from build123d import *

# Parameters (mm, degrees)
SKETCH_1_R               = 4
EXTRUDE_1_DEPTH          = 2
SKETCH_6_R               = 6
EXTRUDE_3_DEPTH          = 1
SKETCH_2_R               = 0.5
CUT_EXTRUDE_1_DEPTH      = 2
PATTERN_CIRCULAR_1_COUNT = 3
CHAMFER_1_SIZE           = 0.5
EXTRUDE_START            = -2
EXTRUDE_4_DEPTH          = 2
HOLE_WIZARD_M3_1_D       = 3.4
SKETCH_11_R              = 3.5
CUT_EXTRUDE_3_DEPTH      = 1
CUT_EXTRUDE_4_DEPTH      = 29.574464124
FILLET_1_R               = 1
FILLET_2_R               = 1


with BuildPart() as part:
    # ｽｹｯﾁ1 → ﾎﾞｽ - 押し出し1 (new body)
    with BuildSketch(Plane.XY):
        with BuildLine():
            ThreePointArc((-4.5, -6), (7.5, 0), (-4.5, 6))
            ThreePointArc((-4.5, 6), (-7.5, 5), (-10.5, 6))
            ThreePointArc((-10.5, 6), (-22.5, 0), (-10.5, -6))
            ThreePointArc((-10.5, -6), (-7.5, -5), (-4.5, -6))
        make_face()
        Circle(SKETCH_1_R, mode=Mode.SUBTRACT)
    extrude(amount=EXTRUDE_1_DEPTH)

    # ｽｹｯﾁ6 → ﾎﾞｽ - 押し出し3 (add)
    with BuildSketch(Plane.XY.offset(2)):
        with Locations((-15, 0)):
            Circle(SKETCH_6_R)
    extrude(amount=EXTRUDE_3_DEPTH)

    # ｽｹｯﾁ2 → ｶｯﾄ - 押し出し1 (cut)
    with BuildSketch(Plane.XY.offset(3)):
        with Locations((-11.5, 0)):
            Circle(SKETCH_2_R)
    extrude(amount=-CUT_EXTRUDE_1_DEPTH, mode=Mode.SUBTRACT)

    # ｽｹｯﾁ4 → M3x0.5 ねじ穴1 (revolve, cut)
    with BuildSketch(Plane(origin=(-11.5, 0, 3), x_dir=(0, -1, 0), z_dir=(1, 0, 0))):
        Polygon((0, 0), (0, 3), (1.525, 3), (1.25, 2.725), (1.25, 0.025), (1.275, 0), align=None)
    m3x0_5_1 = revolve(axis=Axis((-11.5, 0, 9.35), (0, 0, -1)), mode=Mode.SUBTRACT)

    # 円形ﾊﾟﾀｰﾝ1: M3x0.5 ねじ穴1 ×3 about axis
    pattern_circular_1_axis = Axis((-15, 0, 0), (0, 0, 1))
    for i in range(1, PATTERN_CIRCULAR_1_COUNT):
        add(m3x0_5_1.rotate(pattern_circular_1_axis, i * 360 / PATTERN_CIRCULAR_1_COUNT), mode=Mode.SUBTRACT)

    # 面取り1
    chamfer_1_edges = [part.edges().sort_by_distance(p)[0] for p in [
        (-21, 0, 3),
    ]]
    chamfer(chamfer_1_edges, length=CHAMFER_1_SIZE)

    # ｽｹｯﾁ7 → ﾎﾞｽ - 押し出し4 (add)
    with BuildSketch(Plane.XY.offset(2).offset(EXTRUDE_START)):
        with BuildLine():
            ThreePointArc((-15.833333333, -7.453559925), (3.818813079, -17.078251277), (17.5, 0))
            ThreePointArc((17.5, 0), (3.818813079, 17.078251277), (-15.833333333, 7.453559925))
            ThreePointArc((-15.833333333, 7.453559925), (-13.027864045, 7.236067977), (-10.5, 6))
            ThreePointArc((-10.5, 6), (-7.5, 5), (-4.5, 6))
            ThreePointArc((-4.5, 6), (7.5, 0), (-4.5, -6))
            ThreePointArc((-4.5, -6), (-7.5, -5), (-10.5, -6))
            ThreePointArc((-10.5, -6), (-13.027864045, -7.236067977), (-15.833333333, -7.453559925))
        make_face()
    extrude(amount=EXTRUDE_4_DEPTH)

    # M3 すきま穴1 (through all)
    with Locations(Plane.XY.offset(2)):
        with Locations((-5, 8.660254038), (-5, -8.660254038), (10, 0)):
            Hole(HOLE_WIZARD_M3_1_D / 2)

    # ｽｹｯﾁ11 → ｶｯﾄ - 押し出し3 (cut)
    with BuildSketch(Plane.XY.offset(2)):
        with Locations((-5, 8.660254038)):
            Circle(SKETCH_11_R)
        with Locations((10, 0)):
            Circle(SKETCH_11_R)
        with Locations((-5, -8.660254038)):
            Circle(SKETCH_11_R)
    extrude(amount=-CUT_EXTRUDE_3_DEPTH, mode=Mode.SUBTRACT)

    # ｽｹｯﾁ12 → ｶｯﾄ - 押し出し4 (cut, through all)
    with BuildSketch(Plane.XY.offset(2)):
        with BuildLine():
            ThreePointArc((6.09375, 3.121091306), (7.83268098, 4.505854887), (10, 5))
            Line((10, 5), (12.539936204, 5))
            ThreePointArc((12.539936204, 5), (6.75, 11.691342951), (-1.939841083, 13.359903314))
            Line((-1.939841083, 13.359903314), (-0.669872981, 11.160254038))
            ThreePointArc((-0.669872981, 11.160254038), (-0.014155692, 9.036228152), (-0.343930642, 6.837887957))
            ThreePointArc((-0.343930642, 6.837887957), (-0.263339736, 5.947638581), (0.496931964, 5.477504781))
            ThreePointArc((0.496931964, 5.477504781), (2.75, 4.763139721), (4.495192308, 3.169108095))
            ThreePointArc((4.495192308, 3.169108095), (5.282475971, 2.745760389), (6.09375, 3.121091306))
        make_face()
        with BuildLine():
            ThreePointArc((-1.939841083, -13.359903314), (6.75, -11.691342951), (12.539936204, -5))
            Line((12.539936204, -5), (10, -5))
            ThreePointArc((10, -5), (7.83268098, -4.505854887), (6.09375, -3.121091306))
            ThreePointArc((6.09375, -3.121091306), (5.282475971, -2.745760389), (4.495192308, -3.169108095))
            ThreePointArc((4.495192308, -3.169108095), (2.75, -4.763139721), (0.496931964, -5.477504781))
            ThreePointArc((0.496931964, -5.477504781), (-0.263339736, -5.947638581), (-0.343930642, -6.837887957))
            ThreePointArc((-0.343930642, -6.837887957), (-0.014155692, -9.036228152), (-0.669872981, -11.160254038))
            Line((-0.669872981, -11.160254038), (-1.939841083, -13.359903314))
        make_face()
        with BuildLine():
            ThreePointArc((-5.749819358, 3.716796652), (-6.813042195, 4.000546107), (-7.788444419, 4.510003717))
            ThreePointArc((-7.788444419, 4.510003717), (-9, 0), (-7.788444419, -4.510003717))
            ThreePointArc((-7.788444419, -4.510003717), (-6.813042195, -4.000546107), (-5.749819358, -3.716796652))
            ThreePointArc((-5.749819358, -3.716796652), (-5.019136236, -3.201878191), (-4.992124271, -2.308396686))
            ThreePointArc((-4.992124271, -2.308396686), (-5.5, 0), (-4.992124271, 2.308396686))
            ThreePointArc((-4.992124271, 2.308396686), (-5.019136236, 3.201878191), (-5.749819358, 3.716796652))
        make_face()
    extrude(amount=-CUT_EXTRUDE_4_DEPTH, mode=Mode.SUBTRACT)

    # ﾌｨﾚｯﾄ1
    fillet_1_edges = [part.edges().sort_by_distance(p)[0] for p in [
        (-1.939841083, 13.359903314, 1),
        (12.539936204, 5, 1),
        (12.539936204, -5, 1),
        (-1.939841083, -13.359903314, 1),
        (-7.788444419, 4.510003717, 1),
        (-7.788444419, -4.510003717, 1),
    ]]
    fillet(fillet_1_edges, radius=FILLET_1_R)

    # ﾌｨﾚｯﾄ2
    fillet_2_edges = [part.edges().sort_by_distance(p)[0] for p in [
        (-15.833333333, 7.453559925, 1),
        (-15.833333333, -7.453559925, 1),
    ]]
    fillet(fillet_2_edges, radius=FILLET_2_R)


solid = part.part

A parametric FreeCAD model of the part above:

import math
import FreeCAD as App
import Part
import Sketcher
from FreeCAD import Vector
Q = App.Units.Quantity


def edges_at(feature, points):
    """Names of the edges that pass closest to the given points."""
    edges = feature.Shape.Edges
    near = lambda p: min(range(len(edges)), key=lambda i: edges[i].distToShape(Part.Vertex(*p))[0])
    return sorted({f"Edge{near(p) + 1}" for p in points})

doc = App.newDocument("Part")
body = doc.addObject("PartDesign::Body", "Body")

# Sketch on XY plane
sketch1 = body.newObject("Sketcher::SketchObject", "Sketch")
sketch1.AttachmentSupport = (doc.getObject("XY_Plane"), [""])
sketch1.MapMode = "FlatFace"
sketch1.addGeometry(Part.ArcOfCircle(Part.Circle(Vector(0, 0, 0), Vector(0, 0, 1), 7.5), math.radians(-126.869898), math.radians(126.869898)), False)
sketch1.addGeometry(Part.ArcOfCircle(Part.Circle(Vector(-7.5, 10, 0), Vector(0, 0, 1), 5), math.radians(-126.869898), math.radians(-53.130102)), False)
sketch1.addGeometry(Part.ArcOfCircle(Part.Circle(Vector(-15, 0, 0), Vector(0, 0, 1), 7.5), math.radians(53.130102), math.radians(306.869898)), False)
sketch1.addGeometry(Part.ArcOfCircle(Part.Circle(Vector(-7.5, -10, 0), Vector(0, 0, 1), 5), math.radians(53.130102), math.radians(126.869898)), False)
sketch1.addGeometry(Part.Circle(Vector(0, 0, 0), Vector(0, 0, 1), 4), False)
sketch1.addConstraint(Sketcher.Constraint("Tangent", 0, 2, 1, 2))
sketch1.addConstraint(Sketcher.Constraint("Tangent", 1, 1, 2, 1))
sketch1.addConstraint(Sketcher.Constraint("Tangent", 2, 2, 3, 2))
sketch1.addConstraint(Sketcher.Constraint("Tangent", 3, 1, 0, 1))
sketch1.addConstraint(Sketcher.Constraint("Coincident", 0, 3, -1, 1))
sketch1.addConstraint(Sketcher.Constraint("Coincident", 4, 3, -1, 1))
sketch1.addConstraint(Sketcher.Constraint("Equal", 0, 2))
sketch1.addConstraint(Sketcher.Constraint("Equal", 1, 3))
sketch1.addConstraint(Sketcher.Constraint("PointOnObject", 2, 3, -1))
sketch1.addConstraint(Sketcher.Constraint("Diameter", 4, 8.0))
sketch1.addConstraint(Sketcher.Constraint("Radius", 1, 5.0))
sketch1.addConstraint(Sketcher.Constraint("Radius", 0, 7.5))
sketch1.addConstraint(Sketcher.Constraint("DistanceY", -1, 1, 1, 3, 10.0))
pad1 = body.newObject("PartDesign::Pad", "Pad")
pad1.Profile = sketch1
pad1.Length = 2

# Sketch on XY plane
sketch2 = body.newObject("Sketcher::SketchObject", "Sketch001")
sketch2.AttachmentSupport = (doc.getObject("XY_Plane"), [""])
sketch2.MapMode = "FlatFace"
sketch2.AttachmentOffset = App.Placement(Vector(0, 0, 2), App.Rotation())
sketch2.addGeometry(Part.Circle(Vector(-15, 0, 0), Vector(0, 0, 1), 6), False)
sketch2.addConstraint(Sketcher.Constraint("PointOnObject", 0, 3, -1))
sketch2.addConstraint(Sketcher.Constraint("Diameter", 0, 12.0))
sketch2.addConstraint(Sketcher.Constraint("DistanceX", 0, 3, -1, 1, 15.0))
pad2 = body.newObject("PartDesign::Pad", "Pad001")
pad2.Profile = sketch2
pad2.Length = 1

# Sketch on XY plane
sketch3 = body.newObject("Sketcher::SketchObject", "Sketch002")
sketch3.AttachmentSupport = (doc.getObject("XY_Plane"), [""])
sketch3.MapMode = "FlatFace"
sketch3.AttachmentOffset = App.Placement(Vector(0, 0, 3), App.Rotation())
sketch3.addGeometry(Part.Circle(Vector(-11.5, 0, 0), Vector(0, 0, 1), 0.5), False)
sketch3.addConstraint(Sketcher.Constraint("PointOnObject", 0, 3, -1))
sketch3.addConstraint(Sketcher.Constraint("Diameter", 0, 1.0))
sketch3.addConstraint(Sketcher.Constraint("DistanceX", 0, 3, -1, 1, 11.5))
pocket1 = body.newObject("PartDesign::Pocket", "Pocket")
pocket1.Profile = sketch3
pocket1.Length = 2

# Sketch on YZ plane
sketch4 = body.newObject("Sketcher::SketchObject", "Sketch003")
sketch4.AttachmentSupport = (doc.getObject("YZ_Plane"), [""])
sketch4.MapMode = "FlatFace"
sketch4.AttachmentOffset = App.Placement(Vector(0, 0, -11.5), App.Rotation())
sketch4.addGeometry(Part.LineSegment(Vector(0, 0, 0), Vector(0, 3, 0)), False)
sketch4.addGeometry(Part.LineSegment(Vector(0, 3, 0), Vector(-1.275, 3, 0)), False)
sketch4.addGeometry(Part.LineSegment(Vector(-1.275, 3, 0), Vector(-1.25, 2.975, 0)), False)
sketch4.addGeometry(Part.LineSegment(Vector(-1.25, 2.975, 0), Vector(-1.25, 0.275, 0)), False)
sketch4.addGeometry(Part.LineSegment(Vector(-1.25, 0.275, 0), Vector(-1.525, 0, 0)), False)
sketch4.addGeometry(Part.LineSegment(Vector(-1.525, 0, 0), Vector(0, 0, 0)), False)
sketch4.addConstraint(Sketcher.Constraint("Coincident", 0, 2, 1, 1))
sketch4.addConstraint(Sketcher.Constraint("Coincident", 1, 2, 2, 1))
sketch4.addConstraint(Sketcher.Constraint("Coincident", 2, 2, 3, 1))
sketch4.addConstraint(Sketcher.Constraint("Coincident", 3, 2, 4, 1))
sketch4.addConstraint(Sketcher.Constraint("Coincident", 4, 2, 5, 1))
sketch4.addConstraint(Sketcher.Constraint("Coincident", 5, 2, 0, 1))
sketch4.addConstraint(Sketcher.Constraint("Vertical", 0))
sketch4.addConstraint(Sketcher.Constraint("Horizontal", 1))
sketch4.addConstraint(Sketcher.Constraint("Vertical", 3))
sketch4.addConstraint(Sketcher.Constraint("Horizontal", 5))
sketch4.addConstraint(Sketcher.Constraint("Coincident", 5, 2, -1, 1))
sketch4.addConstraint(Sketcher.Constraint("Perpendicular", 2, 4))
sketch4.addConstraint(Sketcher.Constraint("DistanceY", 0, 1, 0, 2, 3.0))
sketch4.addConstraint(Sketcher.Constraint("Angle", 2, Q("-45 deg")))
sketch4.addConstraint(Sketcher.Constraint("DistanceY", 3, 2, 3, 1, 2.7))
sketch4.addConstraint(Sketcher.Constraint("DistanceX", 1, 2, 1, 1, 1.275))
sketch4.addConstraint(Sketcher.Constraint("DistanceX", 5, 1, 5, 2, 1.525))
groove = body.newObject("PartDesign::Groove", "Groove")
groove.Profile = sketch4
groove.ReferenceAxis = (sketch4, ["V_Axis"])
groove.Angle = 360
doc.recompute()

datumline = body.newObject("PartDesign::Line", "DatumLine")
datumline.Placement = App.Placement(Vector(-15, 0, 0), App.Rotation(Vector(0, 0, 1), Vector(0, 0, 1)))
polarpattern = body.newObject("PartDesign::PolarPattern", "PolarPattern")
polarpattern.Originals = [groove]
polarpattern.Axis = (datumline, [""])
polarpattern.Angle = 360
polarpattern.Occurrences = 3
body.Tip = polarpattern
doc.recompute()

chamfer = body.newObject("PartDesign::Chamfer", "Chamfer")
chamfer.Base = (polarpattern, edges_at(polarpattern, [(-21, 0, 3)]))
chamfer.Size = 0.5

# Sketch on XY plane
sketch5 = body.newObject("Sketcher::SketchObject", "Sketch004")
sketch5.AttachmentSupport = (doc.getObject("XY_Plane"), [""])
sketch5.MapMode = "FlatFace"
sketch5.addGeometry(Part.ArcOfCircle(Part.Circle(Vector(0, 0, 0), Vector(0, 0, 1), 17.5), math.radians(-154.791235), math.radians(0)), False)
sketch5.addGeometry(Part.ArcOfCircle(Part.Circle(Vector(0, 0, 0), Vector(0, 0, 1), 17.5), math.radians(0), math.radians(154.791235)), False)
sketch5.addGeometry(Part.ArcOfCircle(Part.Circle(Vector(-15, 0, 0), Vector(0, 0, 1), 7.5), math.radians(53.130102), math.radians(96.37937)), False)
sketch5.addGeometry(Part.ArcOfCircle(Part.Circle(Vector(-7.5, 10, 0), Vector(0, 0, 1), 5), math.radians(-126.869898), math.radians(-53.130102)), False)
sketch5.addGeometry(Part.ArcOfCircle(Part.Circle(Vector(0, 0, 0), Vector(0, 0, 1), 7.5), math.radians(-126.869898), math.radians(126.869898)), False)
sketch5.addGeometry(Part.ArcOfCircle(Part.Circle(Vector(-7.5, -10, 0), Vector(0, 0, 1), 5), math.radians(53.130102), math.radians(126.869898)), False)
sketch5.addGeometry(Part.ArcOfCircle(Part.Circle(Vector(-15, 0, 0), Vector(0, 0, 1), 7.5), math.radians(-96.37937), math.radians(-53.130102)), False)
sketch5.addConstraint(Sketcher.Constraint("Tangent", 0, 2, 1, 1))
sketch5.addConstraint(Sketcher.Constraint("Coincident", 1, 2, 2, 2))
sketch5.addConstraint(Sketcher.Constraint("Tangent", 2, 1, 3, 1))
sketch5.addConstraint(Sketcher.Constraint("Tangent", 3, 2, 4, 2))
sketch5.addConstraint(Sketcher.Constraint("Tangent", 4, 1, 5, 1))
sketch5.addConstraint(Sketcher.Constraint("Tangent", 5, 2, 6, 2))
sketch5.addConstraint(Sketcher.Constraint("Coincident", 6, 1, 0, 1))
sketch5.addConstraint(Sketcher.Constraint("Coincident", 0, 3, -1, 1))
sketch5.addConstraint(Sketcher.Constraint("Coincident", 4, 3, -1, 1))
sketch5.addConstraint(Sketcher.Constraint("Coincident", 6, 3, 2, 3))
sketch5.addConstraint(Sketcher.Constraint("Equal", 0, 1))
sketch5.addConstraint(Sketcher.Constraint("Equal", 2, 4))
sketch5.addConstraint(Sketcher.Constraint("Equal", 3, 5))
sketch5.addConstraint(Sketcher.Constraint("Equal", 4, 6))
sketch5.addConstraint(Sketcher.Constraint("PointOnObject", 2, 3, -1))
sketch5.addConstraint(Sketcher.Constraint("PointOnObject", 0, 2, -1))
sketch5.addConstraint(Sketcher.Constraint("Radius", 3, 5.0))
sketch5.addConstraint(Sketcher.Constraint("Radius", 0, 17.5))
sketch5.addConstraint(Sketcher.Constraint("Radius", 2, 7.5))
sketch5.addConstraint(Sketcher.Constraint("DistanceX", 2, 3, -1, 1, 15.0))
pad3 = body.newObject("PartDesign::Pad", "Pad002")
pad3.Profile = sketch5
pad3.Length = 2

# Sketch on XY plane
sketch6 = body.newObject("Sketcher::SketchObject", "Sketch005")
sketch6.AttachmentSupport = (doc.getObject("XY_Plane"), [""])
sketch6.MapMode = "FlatFace"
sketch6.AttachmentOffset = App.Placement(Vector(0, 0, 2), App.Rotation())
sketch6.addGeometry(Part.Circle(Vector(-5, 8.660254, 0), Vector(0, 0, 1), 1.7), False)
sketch6.addGeometry(Part.Circle(Vector(-5, -8.660254, 0), Vector(0, 0, 1), 1.7), False)
sketch6.addGeometry(Part.Circle(Vector(10, 0, 0), Vector(0, 0, 1), 1.7), False)
sketch6.addConstraint(Sketcher.Constraint("Equal", 0, 1))
sketch6.addConstraint(Sketcher.Constraint("Equal", 1, 2))
sketch6.addConstraint(Sketcher.Constraint("Symmetric", 0, 3, 1, 3, -1))
sketch6.addConstraint(Sketcher.Constraint("PointOnObject", 2, 3, -1))
sketch6.addConstraint(Sketcher.Constraint("Diameter", 0, 3.4))
sketch6.addConstraint(Sketcher.Constraint("DistanceX", 0, 3, -1, 1, 5.0))
sketch6.addConstraint(Sketcher.Constraint("DistanceX", -1, 1, 2, 3, 10.0))
sketch6.addConstraint(Sketcher.Constraint("DistanceY", 1, 3, 0, 3, 17.320508))
doc.recompute()
hole = body.newObject("PartDesign::Hole", "Hole")
hole.Profile = sketch6
hole.ThreadType = "None"
hole.Diameter = 3.4
hole.DepthType = "ThroughAll"

# Sketch on XY plane
sketch7 = body.newObject("Sketcher::SketchObject", "Sketch006")
sketch7.AttachmentSupport = (doc.getObject("XY_Plane"), [""])
sketch7.MapMode = "FlatFace"
sketch7.AttachmentOffset = App.Placement(Vector(0, 0, 2), App.Rotation())
sketch7.addGeometry(Part.Circle(Vector(-5, 8.660254, 0), Vector(0, 0, 1), 3.5), False)
sketch7.addGeometry(Part.Circle(Vector(10, 0, 0), Vector(0, 0, 1), 3.5), False)
sketch7.addGeometry(Part.Circle(Vector(-5, -8.660254, 0), Vector(0, 0, 1), 3.5), False)
sketch7.addConstraint(Sketcher.Constraint("Equal", 0, 1))
sketch7.addConstraint(Sketcher.Constraint("Equal", 1, 2))
sketch7.addConstraint(Sketcher.Constraint("Symmetric", 0, 3, 2, 3, -1))
sketch7.addConstraint(Sketcher.Constraint("PointOnObject", 1, 3, -1))
sketch7.addConstraint(Sketcher.Constraint("Diameter", 0, 7.0))
sketch7.addConstraint(Sketcher.Constraint("DistanceX", 0, 3, -1, 1, 5.0))
sketch7.addConstraint(Sketcher.Constraint("DistanceX", -1, 1, 1, 3, 10.0))
sketch7.addConstraint(Sketcher.Constraint("DistanceY", 2, 3, 0, 3, 17.320508))
pocket2 = body.newObject("PartDesign::Pocket", "Pocket001")
pocket2.Profile = sketch7
pocket2.Length = 1

# Sketch on XY plane
sketch8 = body.newObject("Sketcher::SketchObject", "Sketch007")
sketch8.AttachmentSupport = (doc.getObject("XY_Plane"), [""])
sketch8.MapMode = "FlatFace"
sketch8.AttachmentOffset = App.Placement(Vector(0, 0, 2), App.Rotation())
sketch8.addGeometry(Part.ArcOfCircle(Part.Circle(Vector(10, 0, 0), Vector(0, 0, 1), 5), math.radians(90), math.radians(141.375167)), False)
sketch8.addGeometry(Part.LineSegment(Vector(10, 5, 0), Vector(12.539936, 5, 0)), False)
sketch8.addGeometry(Part.ArcOfCircle(Part.Circle(Vector(0, 0, 0), Vector(0, 0, 1), 13.5), math.radians(21.738461), math.radians(98.261539)), False)
sketch8.addGeometry(Part.LineSegment(Vector(-1.939841, 13.359903, 0), Vector(-0.669873, 11.160254, 0)), False)
sketch8.addGeometry(Part.ArcOfCircle(Part.Circle(Vector(-5, 8.660254, 0), Vector(0, 0, 1), 5), math.radians(-21.375167), math.radians(30)), False)
sketch8.addGeometry(Part.ArcOfCircle(Part.Circle(Vector(0.587283, 6.473415, 0), Vector(0, 0, 1), 1), math.radians(158.624833), math.radians(264.816185)), False)
sketch8.addGeometry(Part.ArcOfCircle(Part.Circle(Vector(0, 0, 0), Vector(0, 0, 1), 5.5), math.radians(35.183815), math.radians(84.816184)), False)
sketch8.addGeometry(Part.ArcOfCircle(Part.Circle(Vector(5.3125, 3.74531, 0), Vector(0, 0, 1), 1), math.radians(-144.816185), math.radians(-38.624833)), False)
sketch8.addGeometry(Part.ArcOfCircle(Part.Circle(Vector(0, 0, 0), Vector(0, 0, 1), 13.5), math.radians(-98.261539), math.radians(-21.738461)), False)
sketch8.addGeometry(Part.LineSegment(Vector(12.539936, -5, 0), Vector(10, -5, 0)), False)
sketch8.addGeometry(Part.ArcOfCircle(Part.Circle(Vector(10, 0, 0), Vector(0, 0, 1), 5), math.radians(-141.375167), math.radians(-90)), False)
sketch8.addGeometry(Part.ArcOfCircle(Part.Circle(Vector(5.3125, -3.74531, 0), Vector(0, 0, 1), 1), math.radians(38.624833), math.radians(144.816185)), False)
sketch8.addGeometry(Part.ArcOfCircle(Part.Circle(Vector(0, 0, 0), Vector(0, 0, 1), 5.5), math.radians(-84.816184), math.radians(-35.183815)), False)
sketch8.addGeometry(Part.ArcOfCircle(Part.Circle(Vector(0.587283, -6.473415, 0), Vector(0, 0, 1), 1), math.radians(95.183815), math.radians(201.375167)), False)
sketch8.addGeometry(Part.ArcOfCircle(Part.Circle(Vector(-5, -8.660254, 0), Vector(0, 0, 1), 5), math.radians(-30), math.radians(21.375167)), False)
sketch8.addGeometry(Part.LineSegment(Vector(-0.669873, -11.160254, 0), Vector(-1.939841, -13.359903, 0)), False)
sketch8.addGeometry(Part.ArcOfCircle(Part.Circle(Vector(-5, 8.660254, 0), Vector(0, 0, 1), 5), math.radians(-123.896119), math.radians(-98.624833)), False)
sketch8.addGeometry(Part.ArcOfCircle(Part.Circle(Vector(0, 0, 0), Vector(0, 0, 1), 9), math.radians(149.926435), math.radians(210.073565)), False)
sketch8.addGeometry(Part.ArcOfCircle(Part.Circle(Vector(-5, -8.660254, 0), Vector(0, 0, 1), 5), math.radians(98.624833), math.radians(123.896119)), False)
sketch8.addGeometry(Part.ArcOfCircle(Part.Circle(Vector(-5.899783, -2.728105, 0), Vector(0, 0, 1), 1), math.radians(-81.375167), math.radians(24.816184)), False)
sketch8.addGeometry(Part.ArcOfCircle(Part.Circle(Vector(0, 0, 0), Vector(0, 0, 1), 5.5), math.radians(155.183815), math.radians(204.816185)), False)
sketch8.addGeometry(Part.ArcOfCircle(Part.Circle(Vector(-5.899783, 2.728105, 0), Vector(0, 0, 1), 1), math.radians(-24.816184), math.radians(81.375167)), False)
sketch8.addConstraint(Sketcher.Constraint("Tangent", 0, 1, 1, 1))
sketch8.addConstraint(Sketcher.Constraint("Coincident", 1, 2, 2, 1))
sketch8.addConstraint(Sketcher.Constraint("Coincident", 2, 2, 3, 1))
sketch8.addConstraint(Sketcher.Constraint("Tangent", 3, 2, 4, 2))
sketch8.addConstraint(Sketcher.Constraint("Tangent", 4, 1, 5, 1))
sketch8.addConstraint(Sketcher.Constraint("Tangent", 5, 2, 6, 2))
sketch8.addConstraint(Sketcher.Constraint("Tangent", 6, 1, 7, 1))
sketch8.addConstraint(Sketcher.Constraint("Tangent", 7, 2, 0, 2))
sketch8.addConstraint(Sketcher.Constraint("Coincident", 8, 2, 9, 1))
sketch8.addConstraint(Sketcher.Constraint("Tangent", 9, 2, 10, 2))
sketch8.addConstraint(Sketcher.Constraint("Tangent", 10, 1, 11, 1))
sketch8.addConstraint(Sketcher.Constraint("Tangent", 11, 2, 12, 2))
sketch8.addConstraint(Sketcher.Constraint("Tangent", 12, 1, 13, 1))
sketch8.addConstraint(Sketcher.Constraint("Tangent", 13, 2, 14, 2))
sketch8.addConstraint(Sketcher.Constraint("Tangent", 14, 1, 15, 1))
sketch8.addConstraint(Sketcher.Constraint("Coincident", 15, 2, 8, 1))
sketch8.addConstraint(Sketcher.Constraint("Coincident", 16, 1, 17, 1))
sketch8.addConstraint(Sketcher.Constraint("Coincident", 17, 2, 18, 2))
sketch8.addConstraint(Sketcher.Constraint("Tangent", 18, 1, 19, 1))
sketch8.addConstraint(Sketcher.Constraint("Tangent", 19, 2, 20, 2))
sketch8.addConstraint(Sketcher.Constraint("Tangent", 20, 1, 21, 1))
sketch8.addConstraint(Sketcher.Constraint("Tangent", 21, 2, 16, 2))
sketch8.addConstraint(Sketcher.Constraint("Horizontal", 1))
sketch8.addConstraint(Sketcher.Constraint("Horizontal", 9))
sketch8.addConstraint(Sketcher.Constraint("Coincident", 2, 3, -1, 1))
sketch8.addConstraint(Sketcher.Constraint("Coincident", 6, 3, -1, 1))
sketch8.addConstraint(Sketcher.Constraint("Coincident", 8, 3, -1, 1))
sketch8.addConstraint(Sketcher.Constraint("Coincident", 12, 3, -1, 1))
sketch8.addConstraint(Sketcher.Constraint("Coincident", 17, 3, -1, 1))
sketch8.addConstraint(Sketcher.Constraint("Coincident", 20, 3, -1, 1))
sketch8.addConstraint(Sketcher.Constraint("Coincident", 10, 3, 0, 3))
sketch8.addConstraint(Sketcher.Constraint("Coincident", 16, 3, 4, 3))
sketch8.addConstraint(Sketcher.Constraint("Coincident", 18, 3, 14, 3))
sketch8.addConstraint(Sketcher.Constraint("Equal", 0, 4))
sketch8.addConstraint(Sketcher.Constraint("Equal", 5, 7))
sketch8.addConstraint(Sketcher.Constraint("Equal", 2, 8))
sketch8.addConstraint(Sketcher.Constraint("Equal", 4, 10))
sketch8.addConstraint(Sketcher.Constraint("Equal", 7, 11))
sketch8.addConstraint(Sketcher.Constraint("Equal", 6, 12))
sketch8.addConstraint(Sketcher.Constraint("Equal", 11, 13))
sketch8.addConstraint(Sketcher.Constraint("Equal", 10, 14))
sketch8.addConstraint(Sketcher.Constraint("Equal", 14, 16))
sketch8.addConstraint(Sketcher.Constraint("Equal", 16, 18))
sketch8.addConstraint(Sketcher.Constraint("Equal", 13, 19))
sketch8.addConstraint(Sketcher.Constraint("Equal", 12, 20))
sketch8.addConstraint(Sketcher.Constraint("Equal", 19, 21))
sketch8.addConstraint(Sketcher.Constraint("Symmetric", 4, 3, 14, 3, -1))
sketch8.addConstraint(Sketcher.Constraint("PointOnObject", 0, 3, -1))
sketch8.addConstraint(Sketcher.Constraint("Vertical", 3, 2, 14, 1))
sketch8.addConstraint(Sketcher.Constraint("Radius", 0, 5.0))
sketch8.addConstraint(Sketcher.Constraint("Radius", 5, 1.0))
sketch8.addConstraint(Sketcher.Constraint("Radius", 17, 9.0))
sketch8.addConstraint(Sketcher.Constraint("Radius", 2, 13.5))
sketch8.addConstraint(Sketcher.Constraint("Radius", 6, 5.5))
sketch8.addConstraint(Sketcher.Constraint("Angle", 3, Q("-60 deg")))
sketch8.addConstraint(Sketcher.Constraint("DistanceX", -1, 1, 0, 3, 10.0))
sketch8.addConstraint(Sketcher.Constraint("DistanceX", 4, 3, -1, 1, 5.0))
sketch8.addConstraint(Sketcher.Constraint("DistanceY", 21, 3, 2, 2, 10.631798))
pocket3 = body.newObject("PartDesign::Pocket", "Pocket002")
pocket3.Profile = sketch8
pocket3.Type = "ThroughAll"
doc.recompute()

fillet = body.newObject("PartDesign::Fillet", "Fillet")
fillet.Base = (pocket3, edges_at(pocket3, [
    (-1.94, 13.36, 1),
    (12.54, 5, 1),
    (12.54, -5, 1),
    (-1.94, -13.36, 1),
    (-7.788, 4.51, 1),
    (-7.788, -4.51, 1),
]))
fillet.Radius = 1
doc.recompute()

fillet2 = body.newObject("PartDesign::Fillet", "Fillet001")
fillet2.Base = (fillet, edges_at(fillet, [(-15.833, 7.454, 1), (-15.833, -7.454, 1)]))
fillet2.Radius = 1

doc.recompute()
